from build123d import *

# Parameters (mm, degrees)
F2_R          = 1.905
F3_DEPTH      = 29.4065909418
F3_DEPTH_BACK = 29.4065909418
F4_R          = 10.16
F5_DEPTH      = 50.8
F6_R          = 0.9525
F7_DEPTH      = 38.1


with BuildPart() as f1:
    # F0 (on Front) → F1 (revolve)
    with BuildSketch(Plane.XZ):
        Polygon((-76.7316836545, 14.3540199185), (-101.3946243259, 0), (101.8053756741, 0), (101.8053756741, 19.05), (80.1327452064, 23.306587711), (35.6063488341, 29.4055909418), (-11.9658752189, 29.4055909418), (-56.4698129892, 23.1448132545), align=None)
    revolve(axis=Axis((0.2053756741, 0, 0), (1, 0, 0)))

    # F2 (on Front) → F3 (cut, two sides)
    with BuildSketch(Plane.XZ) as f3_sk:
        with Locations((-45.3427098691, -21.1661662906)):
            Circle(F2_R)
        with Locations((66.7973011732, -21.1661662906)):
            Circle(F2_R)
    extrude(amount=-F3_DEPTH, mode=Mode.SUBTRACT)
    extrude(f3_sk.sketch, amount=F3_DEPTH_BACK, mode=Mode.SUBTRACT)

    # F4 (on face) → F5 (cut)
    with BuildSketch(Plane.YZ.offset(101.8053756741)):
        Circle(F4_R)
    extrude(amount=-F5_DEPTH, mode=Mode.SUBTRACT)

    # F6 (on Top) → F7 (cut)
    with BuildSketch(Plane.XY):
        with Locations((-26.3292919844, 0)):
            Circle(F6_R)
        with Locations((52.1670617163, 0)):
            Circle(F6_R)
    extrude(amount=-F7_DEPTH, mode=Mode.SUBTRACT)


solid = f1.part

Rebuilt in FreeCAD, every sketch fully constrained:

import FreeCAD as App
import Part
import Sketcher
Q = App.Units.Quantity


def add_polygon(sketch, points):
    """Adds a closed chain of lines whose ends are joined by coincident constraints."""
    first, n = sketch.GeometryCount, len(points)
    for a, b in zip(points, points[1:] + points[:1]):
        sketch.addGeometry(Part.LineSegment(App.Vector(*a, 0), App.Vector(*b, 0)), False)
    for i in range(n):
        sketch.addConstraint(Sketcher.Constraint("Coincident", first + i, 2, first + (i + 1) % n, 1))

doc = App.newDocument("Part")
body = doc.addObject("PartDesign::Body", "Body")

# Sketch on XZ plane
sketch1 = doc.addObject("Sketcher::SketchObject", "Sketch")
body.addObject(sketch1)
sketch1.AttachmentSupport = (doc.XZ_Plane, [""])
sketch1.MapMode = "FlatFace"
add_polygon(sketch1, [(-77, 14), (-101, 0), (102, 0), (102, 19), (80, 23), (36, 29), (-12, 29), (-56, 23)])  # lines 0-7
sketch1.addConstraint([
    Sketcher.Constraint("Horizontal", 1),
    Sketcher.Constraint("Vertical", 2),
    Sketcher.Constraint("Horizontal", 5),
    Sketcher.Constraint("PointOnObject", 0, 2, -1),
    Sketcher.Constraint("Equal", 4, 6),
    Sketcher.Constraint("Equal", 3, 7),
    Sketcher.Constraint("DistanceX", 1, 1, 1, 2, Q("8 in")),
    Sketcher.Constraint("DistanceY", 2, 1, 2, 2, Q("0.75 in")),
    Sketcher.Constraint("Distance", 3, 22.08668),
    Sketcher.Constraint("Distance", 4, 44.942161),
    Sketcher.Constraint("DistanceX", 5, 2, 5, 1, 47.572224),
    Sketcher.Constraint("DistanceX", -1, 1, 4, 2, 35.606349),
    Sketcher.Constraint("DistanceY", -1, 1, 4, 2, 29.405591),
    Sketcher.Constraint("DistanceY", -1, 1, 7, 2, 14.35402),
    Sketcher.Constraint("DistanceX", 3, 2, 2, 2, 21.67263),
    Sketcher.Constraint("DistanceX", 0, 2, 6, 2, 44.924811),
])
revolution = doc.addObject("PartDesign::Revolution", "Revolution")
body.addObject(revolution)
revolution.Profile = sketch1
revolution.ReferenceAxis = (sketch1, ["H_Axis"])
revolution.Angle = 360

# Sketch on XZ plane
sketch2 = doc.addObject("Sketcher::SketchObject", "Sketch001")
body.addObject(sketch2)
sketch2.AttachmentSupport = (doc.XZ_Plane, [""])
sketch2.MapMode = "FlatFace"
sketch2.addGeometry([
    Part.Circle(App.Vector(-45.3, -21.2, 0), App.Vector(0, 0, 1), 1.9),
    Part.Circle(App.Vector(66.8, -21.2, 0), App.Vector(0, 0, 1), 1.9),
], False)
sketch2.addConstraint([
    Sketcher.Constraint("Equal", 0, 1),
    Sketcher.Constraint("Horizontal", 0, 3, 1, 3),
    Sketcher.Constraint("Diameter", 0, Q("0.15 in")),
    Sketcher.Constraint("DistanceX", -1, 1, 1, 3, 66.797301),
    Sketcher.Constraint("DistanceX", 0, 3, -1, 1, 45.34271),
    Sketcher.Constraint("DistanceY", 0, 3, -1, 1, 21.166166),
])
pocket1 = doc.addObject("PartDesign::Pocket", "Pocket")
body.addObject(pocket1)
pocket1.Profile = sketch2
pocket1.Type = "ThroughAll"
pocket1.Midplane = True

# Sketch on YZ plane
sketch3 = doc.addObject("Sketcher::SketchObject", "Sketch002")
body.addObject(sketch3)
sketch3.AttachmentSupport = (doc.YZ_Plane, [""])
sketch3.MapMode = "FlatFace"
sketch3.AttachmentOffset = App.Placement(App.Vector(0, 0, 101.805376), App.Rotation())
sketch3.addGeometry(Part.Circle(App.Vector(0, 0, 0), App.Vector(0, 0, 1), 10), False)
sketch3.addConstraint([
    Sketcher.Constraint("Coincident", 0, 3, -1, 1),
    Sketcher.Constraint("Diameter", 0, Q("0.8 in")),
])
pocket2 = doc.addObject("PartDesign::Pocket", "Pocket001")
body.addObject(pocket2)
pocket2.Profile = sketch3
pocket2.Length = Q("2 in")

# Sketch on XY plane
sketch4 = doc.addObject("Sketcher::SketchObject", "Sketch003")
body.addObject(sketch4)
sketch4.AttachmentSupport = (doc.XY_Plane, [""])
sketch4.MapMode = "FlatFace"
sketch4.addGeometry([
    Part.Circle(App.Vector(-26.3, 0, 0), App.Vector(0, 0, 1), 1),
    Part.Circle(App.Vector(52.2, 0, 0), App.Vector(0, 0, 1), 1),
], False)
sketch4.addConstraint([
    Sketcher.Constraint("Equal", 0, 1),
    Sketcher.Constraint("PointOnObject", 0, 3, -1),
    Sketcher.Constraint("PointOnObject", 1, 3, -1),
    Sketcher.Constraint("Diameter", 0, Q("0.075 in")),
    Sketcher.Constraint("DistanceX", 0, 3, -1, 1, 26.329292),
    Sketcher.Constraint("DistanceX", -1, 1, 1, 3, 52.167062),
])
pocket3 = doc.addObject("PartDesign::Pocket", "Pocket002")
body.addObject(pocket3)
pocket3.Profile = sketch4
pocket3.Length = Q("1.5 in")

doc.recompute()
